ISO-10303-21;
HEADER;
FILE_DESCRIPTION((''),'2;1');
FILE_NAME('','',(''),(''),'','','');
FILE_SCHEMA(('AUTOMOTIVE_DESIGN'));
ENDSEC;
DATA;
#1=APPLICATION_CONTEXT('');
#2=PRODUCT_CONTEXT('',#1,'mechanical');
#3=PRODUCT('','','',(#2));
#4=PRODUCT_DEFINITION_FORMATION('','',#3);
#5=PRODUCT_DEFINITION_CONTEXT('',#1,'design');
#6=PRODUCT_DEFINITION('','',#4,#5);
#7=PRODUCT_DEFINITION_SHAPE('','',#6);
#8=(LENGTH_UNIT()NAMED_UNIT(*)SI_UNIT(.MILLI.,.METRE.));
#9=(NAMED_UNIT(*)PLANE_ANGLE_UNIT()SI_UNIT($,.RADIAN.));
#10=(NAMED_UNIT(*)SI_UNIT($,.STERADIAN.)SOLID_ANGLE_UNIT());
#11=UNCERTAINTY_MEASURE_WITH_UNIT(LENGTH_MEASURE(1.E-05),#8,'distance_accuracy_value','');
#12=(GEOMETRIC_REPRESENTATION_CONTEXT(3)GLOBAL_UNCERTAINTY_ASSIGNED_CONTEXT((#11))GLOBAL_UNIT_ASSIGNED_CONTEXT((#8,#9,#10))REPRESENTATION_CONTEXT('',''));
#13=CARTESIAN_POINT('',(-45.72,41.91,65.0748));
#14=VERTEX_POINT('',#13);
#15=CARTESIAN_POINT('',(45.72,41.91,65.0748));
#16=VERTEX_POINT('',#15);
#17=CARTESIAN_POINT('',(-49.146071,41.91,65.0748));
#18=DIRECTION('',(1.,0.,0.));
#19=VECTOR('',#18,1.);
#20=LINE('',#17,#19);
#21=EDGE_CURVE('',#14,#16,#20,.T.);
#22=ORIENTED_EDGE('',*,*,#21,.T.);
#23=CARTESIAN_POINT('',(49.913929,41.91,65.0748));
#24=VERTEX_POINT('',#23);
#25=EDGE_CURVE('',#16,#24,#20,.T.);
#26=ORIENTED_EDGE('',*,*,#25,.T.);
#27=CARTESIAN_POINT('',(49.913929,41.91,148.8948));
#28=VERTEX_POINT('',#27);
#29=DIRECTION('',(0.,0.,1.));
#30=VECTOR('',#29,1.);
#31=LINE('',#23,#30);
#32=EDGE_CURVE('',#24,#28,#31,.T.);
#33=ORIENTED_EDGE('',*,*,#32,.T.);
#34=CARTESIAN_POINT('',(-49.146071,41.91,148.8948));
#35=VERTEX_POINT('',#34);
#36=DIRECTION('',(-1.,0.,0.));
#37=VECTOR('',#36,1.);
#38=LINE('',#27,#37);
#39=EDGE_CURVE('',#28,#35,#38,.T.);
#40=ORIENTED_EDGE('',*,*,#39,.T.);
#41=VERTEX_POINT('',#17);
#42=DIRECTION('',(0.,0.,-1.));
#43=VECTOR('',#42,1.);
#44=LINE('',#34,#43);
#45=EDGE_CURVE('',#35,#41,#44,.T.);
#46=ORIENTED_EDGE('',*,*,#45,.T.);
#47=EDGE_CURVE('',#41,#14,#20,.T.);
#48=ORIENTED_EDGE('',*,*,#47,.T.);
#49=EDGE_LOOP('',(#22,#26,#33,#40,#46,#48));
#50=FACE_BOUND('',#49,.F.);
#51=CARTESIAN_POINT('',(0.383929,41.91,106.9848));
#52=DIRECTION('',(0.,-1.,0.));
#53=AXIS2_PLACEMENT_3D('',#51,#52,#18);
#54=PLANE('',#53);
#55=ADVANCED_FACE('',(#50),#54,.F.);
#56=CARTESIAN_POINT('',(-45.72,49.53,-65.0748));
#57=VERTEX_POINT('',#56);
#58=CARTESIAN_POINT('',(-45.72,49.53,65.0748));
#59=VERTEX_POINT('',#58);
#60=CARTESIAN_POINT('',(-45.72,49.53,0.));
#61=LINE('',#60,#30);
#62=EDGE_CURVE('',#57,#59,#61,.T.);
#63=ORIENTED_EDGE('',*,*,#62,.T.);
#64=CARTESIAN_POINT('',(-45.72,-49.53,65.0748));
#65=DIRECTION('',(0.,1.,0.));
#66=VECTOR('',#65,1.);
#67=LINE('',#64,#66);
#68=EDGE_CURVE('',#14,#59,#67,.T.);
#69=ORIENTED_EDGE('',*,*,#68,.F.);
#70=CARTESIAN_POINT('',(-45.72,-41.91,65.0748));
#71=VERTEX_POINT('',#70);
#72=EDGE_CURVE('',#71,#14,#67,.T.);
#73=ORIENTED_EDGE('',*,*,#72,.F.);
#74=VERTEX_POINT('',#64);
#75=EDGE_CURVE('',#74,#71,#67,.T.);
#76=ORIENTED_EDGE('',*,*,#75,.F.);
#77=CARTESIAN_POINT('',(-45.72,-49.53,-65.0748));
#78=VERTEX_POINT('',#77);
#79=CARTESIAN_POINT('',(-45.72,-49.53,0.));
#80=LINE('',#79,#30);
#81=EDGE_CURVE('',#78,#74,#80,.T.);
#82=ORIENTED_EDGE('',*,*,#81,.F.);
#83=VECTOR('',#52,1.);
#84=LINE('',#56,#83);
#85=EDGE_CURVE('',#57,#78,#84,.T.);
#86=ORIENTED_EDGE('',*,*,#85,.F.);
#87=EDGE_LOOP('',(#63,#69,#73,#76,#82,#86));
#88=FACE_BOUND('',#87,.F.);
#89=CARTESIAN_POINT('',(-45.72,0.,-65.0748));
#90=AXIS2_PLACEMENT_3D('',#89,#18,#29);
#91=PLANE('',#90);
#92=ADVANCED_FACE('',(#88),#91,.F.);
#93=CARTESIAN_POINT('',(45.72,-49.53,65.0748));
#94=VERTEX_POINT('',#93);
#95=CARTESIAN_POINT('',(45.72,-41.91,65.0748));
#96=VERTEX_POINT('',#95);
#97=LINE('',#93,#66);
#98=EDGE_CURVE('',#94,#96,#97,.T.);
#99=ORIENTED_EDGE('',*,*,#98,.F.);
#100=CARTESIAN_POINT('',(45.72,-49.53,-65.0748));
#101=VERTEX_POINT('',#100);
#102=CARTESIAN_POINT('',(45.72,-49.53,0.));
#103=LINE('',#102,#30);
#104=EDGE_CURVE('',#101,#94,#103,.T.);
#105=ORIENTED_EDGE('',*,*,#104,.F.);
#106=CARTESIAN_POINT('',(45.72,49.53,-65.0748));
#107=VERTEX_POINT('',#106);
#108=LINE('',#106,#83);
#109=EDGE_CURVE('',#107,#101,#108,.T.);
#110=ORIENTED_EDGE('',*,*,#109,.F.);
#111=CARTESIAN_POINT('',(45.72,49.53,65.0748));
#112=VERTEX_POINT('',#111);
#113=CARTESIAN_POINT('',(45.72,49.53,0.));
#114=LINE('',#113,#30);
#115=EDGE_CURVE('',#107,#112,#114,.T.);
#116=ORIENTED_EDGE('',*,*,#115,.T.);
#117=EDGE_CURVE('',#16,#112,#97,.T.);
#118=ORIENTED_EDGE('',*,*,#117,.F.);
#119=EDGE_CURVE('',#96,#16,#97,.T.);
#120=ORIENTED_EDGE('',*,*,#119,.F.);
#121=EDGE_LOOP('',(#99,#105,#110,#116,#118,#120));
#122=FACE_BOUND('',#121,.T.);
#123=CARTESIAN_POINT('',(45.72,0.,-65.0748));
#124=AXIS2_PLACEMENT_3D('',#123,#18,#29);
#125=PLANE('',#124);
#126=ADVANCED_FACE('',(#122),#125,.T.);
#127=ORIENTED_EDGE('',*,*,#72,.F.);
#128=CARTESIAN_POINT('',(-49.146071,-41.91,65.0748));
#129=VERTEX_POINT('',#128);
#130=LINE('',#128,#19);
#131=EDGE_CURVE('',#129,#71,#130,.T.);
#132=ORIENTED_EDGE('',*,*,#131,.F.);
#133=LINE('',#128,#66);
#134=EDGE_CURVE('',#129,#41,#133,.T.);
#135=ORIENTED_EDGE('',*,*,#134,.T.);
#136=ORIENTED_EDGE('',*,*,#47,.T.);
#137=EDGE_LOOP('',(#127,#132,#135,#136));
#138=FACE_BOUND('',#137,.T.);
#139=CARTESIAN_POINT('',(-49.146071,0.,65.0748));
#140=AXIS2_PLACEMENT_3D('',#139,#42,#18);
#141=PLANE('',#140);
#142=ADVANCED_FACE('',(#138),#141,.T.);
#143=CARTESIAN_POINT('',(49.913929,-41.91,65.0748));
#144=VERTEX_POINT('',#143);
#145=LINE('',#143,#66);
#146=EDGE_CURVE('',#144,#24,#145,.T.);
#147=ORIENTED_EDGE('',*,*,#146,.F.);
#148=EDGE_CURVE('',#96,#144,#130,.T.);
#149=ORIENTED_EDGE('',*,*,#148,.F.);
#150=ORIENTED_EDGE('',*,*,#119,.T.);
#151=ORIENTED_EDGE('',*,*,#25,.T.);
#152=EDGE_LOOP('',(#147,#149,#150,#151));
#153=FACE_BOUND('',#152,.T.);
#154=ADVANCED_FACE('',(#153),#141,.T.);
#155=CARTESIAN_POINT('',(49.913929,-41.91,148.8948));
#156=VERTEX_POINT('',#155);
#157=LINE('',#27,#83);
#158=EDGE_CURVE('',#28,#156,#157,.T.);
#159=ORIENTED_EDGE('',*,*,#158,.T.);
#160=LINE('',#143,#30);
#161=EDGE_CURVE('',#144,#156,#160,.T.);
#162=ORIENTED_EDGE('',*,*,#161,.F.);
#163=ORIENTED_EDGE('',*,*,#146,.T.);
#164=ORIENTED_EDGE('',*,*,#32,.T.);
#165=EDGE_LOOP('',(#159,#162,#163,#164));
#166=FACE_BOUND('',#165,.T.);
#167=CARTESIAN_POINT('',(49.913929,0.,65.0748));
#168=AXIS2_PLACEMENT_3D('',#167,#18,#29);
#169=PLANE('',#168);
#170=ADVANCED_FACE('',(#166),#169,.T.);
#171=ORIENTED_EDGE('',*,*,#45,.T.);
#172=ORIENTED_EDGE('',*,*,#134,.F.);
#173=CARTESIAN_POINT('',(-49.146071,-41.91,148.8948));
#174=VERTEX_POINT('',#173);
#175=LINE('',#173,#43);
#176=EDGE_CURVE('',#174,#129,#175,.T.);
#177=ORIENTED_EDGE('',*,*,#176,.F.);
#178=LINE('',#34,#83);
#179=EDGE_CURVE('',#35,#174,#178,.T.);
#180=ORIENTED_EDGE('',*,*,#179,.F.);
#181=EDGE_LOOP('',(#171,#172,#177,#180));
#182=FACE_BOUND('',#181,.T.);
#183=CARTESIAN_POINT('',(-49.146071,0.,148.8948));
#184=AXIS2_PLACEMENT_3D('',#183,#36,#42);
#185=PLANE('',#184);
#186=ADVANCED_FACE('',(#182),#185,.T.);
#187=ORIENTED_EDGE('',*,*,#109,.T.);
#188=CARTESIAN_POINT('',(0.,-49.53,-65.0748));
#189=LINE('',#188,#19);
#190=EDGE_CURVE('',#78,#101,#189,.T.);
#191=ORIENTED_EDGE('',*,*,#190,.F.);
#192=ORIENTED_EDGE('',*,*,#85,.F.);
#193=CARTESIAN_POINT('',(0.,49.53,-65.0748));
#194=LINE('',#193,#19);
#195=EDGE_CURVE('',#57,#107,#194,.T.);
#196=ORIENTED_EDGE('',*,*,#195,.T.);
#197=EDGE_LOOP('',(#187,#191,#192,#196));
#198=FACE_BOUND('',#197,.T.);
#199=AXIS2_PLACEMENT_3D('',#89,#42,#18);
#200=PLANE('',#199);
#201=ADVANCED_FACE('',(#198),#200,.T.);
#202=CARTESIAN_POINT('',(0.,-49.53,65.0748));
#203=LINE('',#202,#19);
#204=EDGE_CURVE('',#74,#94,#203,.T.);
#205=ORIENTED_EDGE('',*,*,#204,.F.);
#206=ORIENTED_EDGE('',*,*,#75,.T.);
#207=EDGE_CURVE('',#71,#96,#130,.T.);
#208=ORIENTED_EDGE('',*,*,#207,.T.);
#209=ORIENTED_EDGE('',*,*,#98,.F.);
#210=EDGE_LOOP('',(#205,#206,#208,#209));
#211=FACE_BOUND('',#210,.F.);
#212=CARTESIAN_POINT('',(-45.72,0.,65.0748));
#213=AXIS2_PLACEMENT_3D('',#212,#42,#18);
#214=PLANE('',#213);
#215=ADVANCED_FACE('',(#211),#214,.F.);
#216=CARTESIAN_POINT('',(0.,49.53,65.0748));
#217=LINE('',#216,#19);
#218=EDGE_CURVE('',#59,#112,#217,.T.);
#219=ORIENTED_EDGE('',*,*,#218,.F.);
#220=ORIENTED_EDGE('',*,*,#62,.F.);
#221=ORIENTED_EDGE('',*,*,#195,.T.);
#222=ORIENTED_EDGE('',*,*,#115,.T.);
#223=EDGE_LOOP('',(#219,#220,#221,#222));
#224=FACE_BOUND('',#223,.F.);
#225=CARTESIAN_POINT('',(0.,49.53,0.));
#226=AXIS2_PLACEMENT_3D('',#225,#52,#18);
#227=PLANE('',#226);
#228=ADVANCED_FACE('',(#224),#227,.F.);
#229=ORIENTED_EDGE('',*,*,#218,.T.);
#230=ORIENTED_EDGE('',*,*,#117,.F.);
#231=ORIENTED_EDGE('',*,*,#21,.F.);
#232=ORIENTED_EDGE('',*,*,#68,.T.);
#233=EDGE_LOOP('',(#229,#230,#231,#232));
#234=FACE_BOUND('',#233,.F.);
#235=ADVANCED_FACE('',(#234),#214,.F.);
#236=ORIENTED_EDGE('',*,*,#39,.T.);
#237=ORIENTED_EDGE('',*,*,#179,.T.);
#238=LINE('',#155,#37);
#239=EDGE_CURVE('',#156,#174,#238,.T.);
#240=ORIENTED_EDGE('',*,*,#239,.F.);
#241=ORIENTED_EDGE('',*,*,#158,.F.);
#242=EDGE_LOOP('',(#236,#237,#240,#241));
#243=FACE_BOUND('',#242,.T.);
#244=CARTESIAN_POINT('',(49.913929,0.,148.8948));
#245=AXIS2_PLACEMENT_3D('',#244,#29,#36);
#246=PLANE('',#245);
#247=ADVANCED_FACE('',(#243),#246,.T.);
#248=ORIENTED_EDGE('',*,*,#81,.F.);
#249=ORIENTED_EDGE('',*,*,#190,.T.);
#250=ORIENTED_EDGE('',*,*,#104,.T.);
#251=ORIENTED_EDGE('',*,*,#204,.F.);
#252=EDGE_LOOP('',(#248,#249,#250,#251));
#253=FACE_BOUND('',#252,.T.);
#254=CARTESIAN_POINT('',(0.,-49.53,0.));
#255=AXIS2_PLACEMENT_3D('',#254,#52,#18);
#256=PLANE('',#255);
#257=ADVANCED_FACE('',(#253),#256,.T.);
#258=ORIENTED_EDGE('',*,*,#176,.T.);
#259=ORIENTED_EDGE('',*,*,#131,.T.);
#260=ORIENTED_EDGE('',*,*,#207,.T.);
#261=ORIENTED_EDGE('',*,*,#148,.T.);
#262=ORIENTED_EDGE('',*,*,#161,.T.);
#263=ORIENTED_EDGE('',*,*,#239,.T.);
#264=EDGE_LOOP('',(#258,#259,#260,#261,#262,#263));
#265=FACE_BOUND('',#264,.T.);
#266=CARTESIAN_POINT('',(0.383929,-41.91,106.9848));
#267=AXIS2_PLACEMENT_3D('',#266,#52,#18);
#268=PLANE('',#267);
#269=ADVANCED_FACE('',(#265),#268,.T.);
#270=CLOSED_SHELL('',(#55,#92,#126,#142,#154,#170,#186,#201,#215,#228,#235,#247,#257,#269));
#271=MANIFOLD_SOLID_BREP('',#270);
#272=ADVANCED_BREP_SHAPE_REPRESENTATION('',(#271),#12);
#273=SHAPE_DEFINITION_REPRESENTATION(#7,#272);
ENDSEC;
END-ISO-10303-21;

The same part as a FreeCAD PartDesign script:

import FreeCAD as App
import Part
import Sketcher

V = App.Vector
Q = App.Units.Quantity

doc = App.newDocument("Part")
body = doc.addObject("PartDesign::Body", "Body")

# Sketch on XZ plane
sketch1 = body.newObject("Sketcher::SketchObject", "Sketch")
sketch1.AttachmentSupport = (doc.getObject("XZ_Plane"), [""])
sketch1.MapMode = "FlatFace"
sketch1.addGeometry([
    Part.LineSegment(V(50, 65, 0), V(50, 149, 0)),
    Part.LineSegment(V(50, 149, 0), V(-49, 149, 0)),
    Part.LineSegment(V(-49, 149, 0), V(-49, 65, 0)),
    Part.LineSegment(V(-49, 65, 0), V(50, 65, 0)),
], False)
sketch1.addConstraint([
    Sketcher.Constraint("Coincident", 0, 2, 1, 1),
    Sketcher.Constraint("Coincident", 1, 2, 2, 1),
    Sketcher.Constraint("Coincident", 2, 2, 3, 1),
    Sketcher.Constraint("Coincident", 3, 2, 0, 1),
    Sketcher.Constraint("Vertical", 0),
    Sketcher.Constraint("Horizontal", 1),
    Sketcher.Constraint("Vertical", 2),
    Sketcher.Constraint("Horizontal", 3),
    Sketcher.Constraint("DistanceX", 1, 2, 1, 1, Q("3.9 in")),
    Sketcher.Constraint("DistanceY", 0, 1, 0, 2, Q("3.3 in")),
    Sketcher.Constraint("DistanceY", -1, 1, 0, 2, Q("5.862 in")),
    Sketcher.Constraint("DistanceX", -1, 1, 0, 2, Q("49.913929 mm")),
])
pad1 = body.newObject("PartDesign::Pad", "Pad")
pad1.Profile = sketch1
pad1.Length = Q("3.3 in")
pad1.Midplane = True

# Sketch on XZ plane
sketch2 = body.newObject("Sketcher::SketchObject", "Sketch001")
sketch2.AttachmentSupport = (doc.getObject("XZ_Plane"), [""])
sketch2.MapMode = "FlatFace"
sketch2.addGeometry([
    Part.LineSegment(V(-46, 65, 0), V(-46, -65, 0)),
    Part.LineSegment(V(-46, -65, 0), V(46, -65, 0)),
    Part.LineSegment(V(46, -65, 0), V(46, 65, 0)),
    Part.LineSegment(V(46, 65, 0), V(-46, 65, 0)),
], False)
sketch2.addConstraint([
    Sketcher.Constraint("Coincident", 0, 2, 1, 1),
    Sketcher.Constraint("Coincident", 1, 2, 2, 1),
    Sketcher.Constraint("Coincident", 2, 2, 3, 1),
    Sketcher.Constraint("Coincident", 3, 2, 0, 1),
    Sketcher.Constraint("Vertical", 0),
    Sketcher.Constraint("Horizontal", 1),
    Sketcher.Constraint("Vertical", 2),
    Sketcher.Constraint("Horizontal", 3),
    Sketcher.Constraint("Symmetric", 0, 2, 2, 2, -1, 1),
    Sketcher.Constraint("DistanceX", 1, 1, 1, 2, Q("3.6 in")),
    Sketcher.Constraint("DistanceY", 0, 2, 0, 1, Q("5.124 in")),
])
pad2 = body.newObject("PartDesign::Pad", "Pad001")
pad2.Profile = sketch2
pad2.Length = Q("3.9 in")
pad2.Midplane = True

doc.recompute()
